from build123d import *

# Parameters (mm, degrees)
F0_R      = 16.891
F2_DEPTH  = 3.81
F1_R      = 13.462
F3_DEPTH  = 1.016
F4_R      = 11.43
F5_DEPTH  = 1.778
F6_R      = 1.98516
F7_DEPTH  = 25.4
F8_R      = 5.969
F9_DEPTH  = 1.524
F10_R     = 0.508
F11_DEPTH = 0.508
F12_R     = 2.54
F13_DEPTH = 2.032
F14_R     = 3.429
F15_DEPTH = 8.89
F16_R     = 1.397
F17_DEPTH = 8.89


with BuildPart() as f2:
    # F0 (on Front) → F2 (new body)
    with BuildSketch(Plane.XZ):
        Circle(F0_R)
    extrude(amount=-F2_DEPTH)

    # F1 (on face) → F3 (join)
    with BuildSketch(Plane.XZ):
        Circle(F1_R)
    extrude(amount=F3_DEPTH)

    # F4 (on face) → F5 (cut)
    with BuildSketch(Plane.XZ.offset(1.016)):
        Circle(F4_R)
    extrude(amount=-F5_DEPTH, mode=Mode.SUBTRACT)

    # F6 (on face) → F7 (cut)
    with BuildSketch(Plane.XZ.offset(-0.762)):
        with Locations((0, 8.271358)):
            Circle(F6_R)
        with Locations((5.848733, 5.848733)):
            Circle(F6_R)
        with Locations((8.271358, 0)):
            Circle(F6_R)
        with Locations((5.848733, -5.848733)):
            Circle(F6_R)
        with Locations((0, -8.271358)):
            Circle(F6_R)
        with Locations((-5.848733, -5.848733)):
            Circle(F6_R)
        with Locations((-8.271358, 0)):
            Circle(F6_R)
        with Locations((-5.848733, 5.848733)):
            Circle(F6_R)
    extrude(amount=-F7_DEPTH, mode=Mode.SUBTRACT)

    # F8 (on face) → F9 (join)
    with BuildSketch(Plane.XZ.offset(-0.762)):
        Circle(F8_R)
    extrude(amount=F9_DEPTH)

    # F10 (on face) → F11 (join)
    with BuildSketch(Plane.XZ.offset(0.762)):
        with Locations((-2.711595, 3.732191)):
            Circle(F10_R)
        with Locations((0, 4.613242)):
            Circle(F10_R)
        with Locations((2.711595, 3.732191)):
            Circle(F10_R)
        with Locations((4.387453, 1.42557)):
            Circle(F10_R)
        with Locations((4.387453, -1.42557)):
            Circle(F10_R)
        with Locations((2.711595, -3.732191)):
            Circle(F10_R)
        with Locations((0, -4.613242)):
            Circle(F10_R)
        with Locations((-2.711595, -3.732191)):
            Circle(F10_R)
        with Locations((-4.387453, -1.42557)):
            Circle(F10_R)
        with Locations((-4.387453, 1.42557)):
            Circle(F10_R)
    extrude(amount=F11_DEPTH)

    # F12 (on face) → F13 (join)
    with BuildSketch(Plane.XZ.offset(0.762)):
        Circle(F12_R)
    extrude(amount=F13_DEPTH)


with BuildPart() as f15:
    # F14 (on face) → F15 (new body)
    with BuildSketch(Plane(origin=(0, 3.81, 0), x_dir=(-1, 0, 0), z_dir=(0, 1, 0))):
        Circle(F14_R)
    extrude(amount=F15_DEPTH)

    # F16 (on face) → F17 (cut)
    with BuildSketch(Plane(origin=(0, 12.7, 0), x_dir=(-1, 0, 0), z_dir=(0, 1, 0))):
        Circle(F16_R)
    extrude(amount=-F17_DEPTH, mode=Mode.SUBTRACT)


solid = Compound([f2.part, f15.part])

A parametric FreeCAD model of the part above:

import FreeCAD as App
import Part
import Sketcher

V = App.Vector
Q = App.Units.Quantity

doc = App.newDocument("Part")
body = doc.addObject("PartDesign::Body", "Body")

sketch1 = body.newObject("Sketcher::SketchObject", "Sketch")
sketch1.AttachmentSupport = (doc.getObject("XZ_Plane"), [""])
sketch1.MapMode = "FlatFace"
sketch1.addGeometry(Part.Circle(V(0, 0, 0), V(0, 0, 1), 17), False)
sketch1.addConstraint(Sketcher.Constraint("Coincident", 0, 3, -1, 1))
sketch1.addConstraint(Sketcher.Constraint("Diameter", 0, Q("1.33 in")))
pad1 = body.newObject("PartDesign::Pad", "Pad")
pad1.Profile = sketch1
pad1.Length = Q("0.15 in")
pad1.Reversed = True

sketch2 = body.newObject("Sketcher::SketchObject", "Sketch001")
sketch2.AttachmentSupport = (doc.getObject("XZ_Plane"), [""])
sketch2.MapMode = "FlatFace"
sketch2.addGeometry(Part.Circle(V(0, 0, 0), V(0, 0, 1), 13), False)
sketch2.addConstraint(Sketcher.Constraint("Coincident", 0, 3, -1, 1))
sketch2.addConstraint(Sketcher.Constraint("Diameter", 0, Q("1.06 in")))
pad2 = body.newObject("PartDesign::Pad", "Pad001")
pad2.Profile = sketch2
pad2.Length = Q("0.04 in")

sketch3 = body.newObject("Sketcher::SketchObject", "Sketch002")
sketch3.AttachmentSupport = (doc.getObject("XZ_Plane"), [""])
sketch3.MapMode = "FlatFace"
sketch3.AttachmentOffset = App.Placement(V(0, 0, 0.04 * 25.4), App.Rotation())
sketch3.addGeometry(Part.Circle(V(0, 0, 0), V(0, 0, 1), 11), False)
sketch3.addConstraint(Sketcher.Constraint("Coincident", 0, 3, -1, 1))
sketch3.addConstraint(Sketcher.Constraint("Diameter", 0, Q("0.9 in")))
pocket1 = body.newObject("PartDesign::Pocket", "Pocket")
pocket1.Profile = sketch3
pocket1.Length = Q("0.07 in")

sketch4 = body.newObject("Sketcher::SketchObject", "Sketch003")
sketch4.AttachmentSupport = (doc.getObject("XZ_Plane"), [""])
sketch4.MapMode = "FlatFace"
sketch4.AttachmentOffset = App.Placement(V(0, 0, -0.03 * 25.4), App.Rotation())
sketch4.addGeometry(Part.Circle(V(0, 8.3, 0), V(0, 0, 1), 2), False)
sketch4.addGeometry(Part.Circle(V(5.8, 5.8, 0), V(0, 0, 1), 2), False)
sketch4.addGeometry(Part.Circle(V(8.3, 0, 0), V(0, 0, 1), 2), False)
sketch4.addGeometry(Part.Circle(V(5.8, -5.8, 0), V(0, 0, 1), 2), False)
sketch4.addGeometry(Part.Circle(V(0, -8.3, 0), V(0, 0, 1), 2), False)
sketch4.addGeometry(Part.Circle(V(-5.8, -5.8, 0), V(0, 0, 1), 2), False)
sketch4.addGeometry(Part.Circle(V(-8.3, 0, 0), V(0, 0, 1), 2), False)
sketch4.addGeometry(Part.Circle(V(-5.8, 5.8, 0), V(0, 0, 1), 2), False)
sketch4.addConstraint(Sketcher.Constraint("Equal", 0, 1))
sketch4.addConstraint(Sketcher.Constraint("Equal", 1, 2))
sketch4.addConstraint(Sketcher.Constraint("Equal", 2, 3))
sketch4.addConstraint(Sketcher.Constraint("Equal", 3, 4))
sketch4.addConstraint(Sketcher.Constraint("Equal", 4, 5))
sketch4.addConstraint(Sketcher.Constraint("Equal", 5, 6))
sketch4.addConstraint(Sketcher.Constraint("Equal", 6, 7))
sketch4.addConstraint(Sketcher.Constraint("Symmetric", 0, 3, 4, 3, -1, 1))
sketch4.addConstraint(Sketcher.Constraint("Symmetric", 1, 3, 5, 3, -1, 1))
sketch4.addConstraint(Sketcher.Constraint("Symmetric", 2, 3, 6, 3, -1, 1))
sketch4.addConstraint(Sketcher.Constraint("Symmetric", 3, 3, 7, 3, -1, 1))
sketch4.addConstraint(Sketcher.Constraint("Symmetric", 3, 3, 5, 3, -2))
sketch4.addConstraint(Sketcher.Constraint("PointOnObject", 0, 3, -2))
sketch4.addConstraint(Sketcher.Constraint("PointOnObject", 2, 3, -1))
sketch4.addConstraint(Sketcher.Constraint("Diameter", 0, Q("3.97032 mm")))
sketch4.addConstraint(Sketcher.Constraint("DistanceY", 3, 3, 0, 3, Q("14.120091 mm")))
sketch4.addConstraint(Sketcher.Constraint("DistanceX", 5, 3, 2, 3, Q("14.120091 mm")))
sketch4.addConstraint(Sketcher.Constraint("DistanceY", -1, 1, 0, 3, Q("8.271358 mm")))
sketch4.addConstraint(Sketcher.Constraint("DistanceX", -1, 1, 1, 3, Q("5.848733 mm")))
pocket2 = body.newObject("PartDesign::Pocket", "Pocket001")
pocket2.Profile = sketch4
pocket2.Length = Q("1 in")

sketch5 = body.newObject("Sketcher::SketchObject", "Sketch004")
sketch5.AttachmentSupport = (doc.getObject("XZ_Plane"), [""])
sketch5.MapMode = "FlatFace"
sketch5.AttachmentOffset = App.Placement(V(0, 0, -0.03 * 25.4), App.Rotation())
sketch5.addGeometry(Part.Circle(V(0, 0, 0), V(0, 0, 1), 6), False)
sketch5.addConstraint(Sketcher.Constraint("Coincident", 0, 3, -1, 1))
sketch5.addConstraint(Sketcher.Constraint("Diameter", 0, Q("0.47 in")))
pad3 = body.newObject("PartDesign::Pad", "Pad002")
pad3.Profile = sketch5
pad3.Length = Q("0.06 in")

sketch6 = body.newObject("Sketcher::SketchObject", "Sketch005")
sketch6.AttachmentSupport = (doc.getObject("XZ_Plane"), [""])
sketch6.MapMode = "FlatFace"
sketch6.AttachmentOffset = App.Placement(V(0, 0, 0.03 * 25.4), App.Rotation())
sketch6.addGeometry(Part.Circle(V(-2.7, 3.7, 0), V(0, 0, 1), 0.5), False)
sketch6.addGeometry(Part.Circle(V(0, 4.6, 0), V(0, 0, 1), 0.5), False)
sketch6.addGeometry(Part.Circle(V(2.7, 3.7, 0), V(0, 0, 1), 0.5), False)
sketch6.addGeometry(Part.Circle(V(4.4, 1.4, 0), V(0, 0, 1), 0.5), False)
sketch6.addGeometry(Part.Circle(V(4.4, -1.4, 0), V(0, 0, 1), 0.5), False)
sketch6.addGeometry(Part.Circle(V(2.7, -3.7, 0), V(0, 0, 1), 0.5), False)
sketch6.addGeometry(Part.Circle(V(0, -4.6, 0), V(0, 0, 1), 0.5), False)
sketch6.addGeometry(Part.Circle(V(-2.7, -3.7, 0), V(0, 0, 1), 0.5), False)
sketch6.addGeometry(Part.Circle(V(-4.4, -1.4, 0), V(0, 0, 1), 0.5), False)
sketch6.addGeometry(Part.Circle(V(-4.4, 1.4, 0), V(0, 0, 1), 0.5), False)
sketch6.addConstraint(Sketcher.Constraint("Equal", 0, 1))
sketch6.addConstraint(Sketcher.Constraint("Equal", 1, 2))
sketch6.addConstraint(Sketcher.Constraint("Equal", 2, 3))
sketch6.addConstraint(Sketcher.Constraint("Equal", 3, 4))
sketch6.addConstraint(Sketcher.Constraint("Equal", 4, 5))
sketch6.addConstraint(Sketcher.Constraint("Equal", 5, 6))
sketch6.addConstraint(Sketcher.Constraint("Equal", 6, 7))
sketch6.addConstraint(Sketcher.Constraint("Equal", 7, 8))
sketch6.addConstraint(Sketcher.Constraint("Equal", 8, 9))
sketch6.addConstraint(Sketcher.Constraint("Symmetric", 0, 3, 5, 3, -1, 1))
sketch6.addConstraint(Sketcher.Constraint("Symmetric", 1, 3, 6, 3, -1, 1))
sketch6.addConstraint(Sketcher.Constraint("Symmetric", 2, 3, 7, 3, -1, 1))
sketch6.addConstraint(Sketcher.Constraint("Symmetric", 3, 3, 8, 3, -1, 1))
sketch6.addConstraint(Sketcher.Constraint("Symmetric", 4, 3, 9, 3, -1, 1))
sketch6.addConstraint(Sketcher.Constraint("Symmetric", 0, 3, 2, 3, -2))
sketch6.addConstraint(Sketcher.Constraint("Symmetric", 4, 3, 8, 3, -2))
sketch6.addConstraint(Sketcher.Constraint("PointOnObject", 1, 3, -2))
sketch6.addConstraint(Sketcher.Constraint("Diameter", 0, Q("0.04 in")))
sketch6.addConstraint(Sketcher.Constraint("DistanceY", -1, 1, 0, 3, Q("3.732191 mm")))
sketch6.addConstraint(Sketcher.Constraint("DistanceY", -1, 1, 1, 3, Q("4.613242 mm")))
sketch6.addConstraint(Sketcher.Constraint("DistanceY", -1, 1, 3, 3, Q("1.42557 mm")))
sketch6.addConstraint(Sketcher.Constraint("DistanceX", 0, 3, 2, 3, Q("5.42319 mm")))
sketch6.addConstraint(Sketcher.Constraint("DistanceX", -1, 1, 3, 3, Q("4.387453 mm")))
pad4 = body.newObject("PartDesign::Pad", "Pad003")
pad4.Profile = sketch6
pad4.Length = Q("0.02 in")

sketch7 = body.newObject("Sketcher::SketchObject", "Sketch006")
sketch7.AttachmentSupport = (doc.getObject("XZ_Plane"), [""])
sketch7.MapMode = "FlatFace"
sketch7.AttachmentOffset = App.Placement(V(0, 0, 0.03 * 25.4), App.Rotation())
sketch7.addGeometry(Part.Circle(V(0, 0, 0), V(0, 0, 1), 2.5), False)
sketch7.addConstraint(Sketcher.Constraint("Coincident", 0, 3, -1, 1))
sketch7.addConstraint(Sketcher.Constraint("Diameter", 0, Q("0.2 in")))
pad5 = body.newObject("PartDesign::Pad", "Pad004")
pad5.Profile = sketch7
pad5.Length = Q("0.08 in")
body2 = doc.addObject("PartDesign::Body", "Body001")

sketch8 = body2.newObject("Sketcher::SketchObject", "Sketch007")
sketch8.AttachmentSupport = (doc.getObject("XZ_Plane001"), [""])
sketch8.MapMode = "FlatFace"
sketch8.AttachmentOffset = App.Placement(V(0, 0, -0.15 * 25.4), App.Rotation())
sketch8.addGeometry(Part.Circle(V(0, 0, 0), V(0, 0, 1), 3.4), False)
sketch8.addConstraint(Sketcher.Constraint("Coincident", 0, 3, -1, 1))
sketch8.addConstraint(Sketcher.Constraint("Diameter", 0, Q("0.27 in")))
pad6 = body2.newObject("PartDesign::Pad", "Pad005")
pad6.Profile = sketch8
pad6.Length = Q("0.35 in")
pad6.Reversed = True

sketch9 = body2.newObject("Sketcher::SketchObject", "Sketch008")
sketch9.AttachmentSupport = (doc.getObject("XZ_Plane001"), [""])
sketch9.MapMode = "FlatFace"
sketch9.AttachmentOffset = App.Placement(V(0, 0, -0.5 * 25.4), App.Rotation())
sketch9.addGeometry(Part.Circle(V(0, 0, 0), V(0, 0, 1), 1.4), False)
sketch9.addConstraint(Sketcher.Constraint("Coincident", 0, 3, -1, 1))
sketch9.addConstraint(Sketcher.Constraint("Diameter", 0, Q("0.11 in")))
pocket3 = body2.newObject("PartDesign::Pocket", "Pocket002")
pocket3.Profile = sketch9
pocket3.Length = Q("0.35 in")
pocket3.Reversed = True

doc.recompute()
